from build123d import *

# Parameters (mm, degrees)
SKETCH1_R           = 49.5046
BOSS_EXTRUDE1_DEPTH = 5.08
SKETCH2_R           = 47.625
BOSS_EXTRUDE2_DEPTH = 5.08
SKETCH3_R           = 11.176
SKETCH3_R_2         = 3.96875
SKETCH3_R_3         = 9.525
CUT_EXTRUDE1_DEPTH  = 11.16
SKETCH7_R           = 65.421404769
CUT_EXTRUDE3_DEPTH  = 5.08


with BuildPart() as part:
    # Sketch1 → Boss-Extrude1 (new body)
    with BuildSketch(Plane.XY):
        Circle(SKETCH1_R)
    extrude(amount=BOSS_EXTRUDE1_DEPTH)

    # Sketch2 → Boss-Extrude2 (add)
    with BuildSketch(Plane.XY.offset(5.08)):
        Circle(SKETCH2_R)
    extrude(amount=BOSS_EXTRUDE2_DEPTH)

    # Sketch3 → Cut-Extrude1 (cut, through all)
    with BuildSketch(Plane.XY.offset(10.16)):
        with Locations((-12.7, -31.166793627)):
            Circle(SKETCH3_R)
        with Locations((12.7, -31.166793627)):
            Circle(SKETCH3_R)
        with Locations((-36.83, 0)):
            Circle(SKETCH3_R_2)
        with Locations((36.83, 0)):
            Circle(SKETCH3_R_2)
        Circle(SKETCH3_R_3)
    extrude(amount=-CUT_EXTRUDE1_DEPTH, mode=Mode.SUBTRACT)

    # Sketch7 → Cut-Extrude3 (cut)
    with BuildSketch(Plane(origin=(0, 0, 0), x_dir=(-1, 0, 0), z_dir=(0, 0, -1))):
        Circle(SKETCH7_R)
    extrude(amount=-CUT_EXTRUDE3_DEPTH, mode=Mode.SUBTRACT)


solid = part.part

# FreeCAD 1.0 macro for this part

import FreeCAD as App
import Part
import Sketcher
Q = App.Units.Quantity

doc = App.newDocument("Part")
body = doc.addObject("PartDesign::Body", "Body")

# Sketch on XY plane
sketch1 = doc.addObject("Sketcher::SketchObject", "Sketch")
body.addObject(sketch1)
sketch1.AttachmentSupport = (doc.XY_Plane, [""])
sketch1.MapMode = "FlatFace"
sketch1.addGeometry(Part.Circle(App.Vector(0, 0, 0), App.Vector(0, 0, 1), 50), False)
sketch1.addConstraint(Sketcher.Constraint("Coincident", 0, 3, -1, 1))
sketch1.addConstraint(Sketcher.Constraint("Diameter", 0, Q("3.898 in")))
pad1 = doc.addObject("PartDesign::Pad", "Pad")
body.addObject(pad1)
pad1.Profile = sketch1
pad1.Length = Q("0.2 in")

# Sketch on XY plane
sketch2 = doc.addObject("Sketcher::SketchObject", "Sketch001")
body.addObject(sketch2)
sketch2.AttachmentSupport = (doc.XY_Plane, [""])
sketch2.MapMode = "FlatFace"
sketch2.AttachmentOffset = App.Placement(App.Vector(0, 0, 0.2 * 25.4), App.Rotation())
sketch2.addGeometry(Part.Circle(App.Vector(0, 0, 0), App.Vector(0, 0, 1), 48), False)
sketch2.addConstraint(Sketcher.Constraint("Coincident", 0, 3, -1, 1))
sketch2.addConstraint(Sketcher.Constraint("Diameter", 0, Q("3.75 in")))
pad2 = doc.addObject("PartDesign::Pad", "Pad001")
body.addObject(pad2)
pad2.Profile = sketch2
pad2.Length = Q("0.2 in")

# Sketch on XY plane
sketch3 = doc.addObject("Sketcher::SketchObject", "Sketch002")
body.addObject(sketch3)
sketch3.AttachmentSupport = (doc.XY_Plane, [""])
sketch3.MapMode = "FlatFace"
sketch3.AttachmentOffset = App.Placement(App.Vector(0, 0, 0.4 * 25.4), App.Rotation())
sketch3.addGeometry(Part.Circle(App.Vector(-12.7, -31.2, 0), App.Vector(0, 0, 1), 11.2), False)
sketch3.addGeometry(Part.Circle(App.Vector(12.7, -31.2, 0), App.Vector(0, 0, 1), 11.2), False)
sketch3.addGeometry(Part.Circle(App.Vector(-36.8, 0, 0), App.Vector(0, 0, 1), 4), False)
sketch3.addGeometry(Part.Circle(App.Vector(36.8, 0, 0), App.Vector(0, 0, 1), 4), False)
sketch3.addGeometry(Part.Circle(App.Vector(0, 0, 0), App.Vector(0, 0, 1), 9.5), False)
sketch3.addConstraint(Sketcher.Constraint("Coincident", 4, 3, -1, 1))
sketch3.addConstraint(Sketcher.Constraint("Equal", 0, 1))
sketch3.addConstraint(Sketcher.Constraint("Equal", 2, 3))
sketch3.addConstraint(Sketcher.Constraint("Symmetric", 2, 3, 3, 3, -1, 1))
sketch3.addConstraint(Sketcher.Constraint("Symmetric", 0, 3, 1, 3, -2))
sketch3.addConstraint(Sketcher.Constraint("PointOnObject", 2, 3, -1))
sketch3.addConstraint(Sketcher.Constraint("Diameter", 0, Q("0.88 in")))
sketch3.addConstraint(Sketcher.Constraint("Diameter", 4, Q("0.75 in")))
sketch3.addConstraint(Sketcher.Constraint("Diameter", 2, Q("0.3125 in")))
sketch3.addConstraint(Sketcher.Constraint("DistanceX", 0, 3, 1, 3, Q("1 in")))
sketch3.addConstraint(Sketcher.Constraint("DistanceX", 2, 3, 3, 3, Q("2.9 in")))
sketch3.addConstraint(Sketcher.Constraint("DistanceY", 0, 3, -1, 1, Q("31.166794 mm")))
pocket1 = doc.addObject("PartDesign::Pocket", "Pocket")
body.addObject(pocket1)
pocket1.Profile = sketch3
pocket1.Type = "ThroughAll"

# Sketch on XY plane
sketch4 = doc.addObject("Sketcher::SketchObject", "Sketch003")
body.addObject(sketch4)
sketch4.AttachmentSupport = (doc.XY_Plane, [""])
sketch4.MapMode = "FlatFace"
sketch4.addGeometry(Part.Circle(App.Vector(0, 0, 0), App.Vector(0, 0, 1), 65), False)
sketch4.addConstraint(Sketcher.Constraint("Coincident", 0, 3, -1, 1))
sketch4.addConstraint(Sketcher.Constraint("Diameter", 0, Q("130.84281 mm")))
pocket2 = doc.addObject("PartDesign::Pocket", "Pocket001")
body.addObject(pocket2)
pocket2.Profile = sketch4
pocket2.Length = Q("0.2 in")
pocket2.Reversed = True

doc.recompute()
